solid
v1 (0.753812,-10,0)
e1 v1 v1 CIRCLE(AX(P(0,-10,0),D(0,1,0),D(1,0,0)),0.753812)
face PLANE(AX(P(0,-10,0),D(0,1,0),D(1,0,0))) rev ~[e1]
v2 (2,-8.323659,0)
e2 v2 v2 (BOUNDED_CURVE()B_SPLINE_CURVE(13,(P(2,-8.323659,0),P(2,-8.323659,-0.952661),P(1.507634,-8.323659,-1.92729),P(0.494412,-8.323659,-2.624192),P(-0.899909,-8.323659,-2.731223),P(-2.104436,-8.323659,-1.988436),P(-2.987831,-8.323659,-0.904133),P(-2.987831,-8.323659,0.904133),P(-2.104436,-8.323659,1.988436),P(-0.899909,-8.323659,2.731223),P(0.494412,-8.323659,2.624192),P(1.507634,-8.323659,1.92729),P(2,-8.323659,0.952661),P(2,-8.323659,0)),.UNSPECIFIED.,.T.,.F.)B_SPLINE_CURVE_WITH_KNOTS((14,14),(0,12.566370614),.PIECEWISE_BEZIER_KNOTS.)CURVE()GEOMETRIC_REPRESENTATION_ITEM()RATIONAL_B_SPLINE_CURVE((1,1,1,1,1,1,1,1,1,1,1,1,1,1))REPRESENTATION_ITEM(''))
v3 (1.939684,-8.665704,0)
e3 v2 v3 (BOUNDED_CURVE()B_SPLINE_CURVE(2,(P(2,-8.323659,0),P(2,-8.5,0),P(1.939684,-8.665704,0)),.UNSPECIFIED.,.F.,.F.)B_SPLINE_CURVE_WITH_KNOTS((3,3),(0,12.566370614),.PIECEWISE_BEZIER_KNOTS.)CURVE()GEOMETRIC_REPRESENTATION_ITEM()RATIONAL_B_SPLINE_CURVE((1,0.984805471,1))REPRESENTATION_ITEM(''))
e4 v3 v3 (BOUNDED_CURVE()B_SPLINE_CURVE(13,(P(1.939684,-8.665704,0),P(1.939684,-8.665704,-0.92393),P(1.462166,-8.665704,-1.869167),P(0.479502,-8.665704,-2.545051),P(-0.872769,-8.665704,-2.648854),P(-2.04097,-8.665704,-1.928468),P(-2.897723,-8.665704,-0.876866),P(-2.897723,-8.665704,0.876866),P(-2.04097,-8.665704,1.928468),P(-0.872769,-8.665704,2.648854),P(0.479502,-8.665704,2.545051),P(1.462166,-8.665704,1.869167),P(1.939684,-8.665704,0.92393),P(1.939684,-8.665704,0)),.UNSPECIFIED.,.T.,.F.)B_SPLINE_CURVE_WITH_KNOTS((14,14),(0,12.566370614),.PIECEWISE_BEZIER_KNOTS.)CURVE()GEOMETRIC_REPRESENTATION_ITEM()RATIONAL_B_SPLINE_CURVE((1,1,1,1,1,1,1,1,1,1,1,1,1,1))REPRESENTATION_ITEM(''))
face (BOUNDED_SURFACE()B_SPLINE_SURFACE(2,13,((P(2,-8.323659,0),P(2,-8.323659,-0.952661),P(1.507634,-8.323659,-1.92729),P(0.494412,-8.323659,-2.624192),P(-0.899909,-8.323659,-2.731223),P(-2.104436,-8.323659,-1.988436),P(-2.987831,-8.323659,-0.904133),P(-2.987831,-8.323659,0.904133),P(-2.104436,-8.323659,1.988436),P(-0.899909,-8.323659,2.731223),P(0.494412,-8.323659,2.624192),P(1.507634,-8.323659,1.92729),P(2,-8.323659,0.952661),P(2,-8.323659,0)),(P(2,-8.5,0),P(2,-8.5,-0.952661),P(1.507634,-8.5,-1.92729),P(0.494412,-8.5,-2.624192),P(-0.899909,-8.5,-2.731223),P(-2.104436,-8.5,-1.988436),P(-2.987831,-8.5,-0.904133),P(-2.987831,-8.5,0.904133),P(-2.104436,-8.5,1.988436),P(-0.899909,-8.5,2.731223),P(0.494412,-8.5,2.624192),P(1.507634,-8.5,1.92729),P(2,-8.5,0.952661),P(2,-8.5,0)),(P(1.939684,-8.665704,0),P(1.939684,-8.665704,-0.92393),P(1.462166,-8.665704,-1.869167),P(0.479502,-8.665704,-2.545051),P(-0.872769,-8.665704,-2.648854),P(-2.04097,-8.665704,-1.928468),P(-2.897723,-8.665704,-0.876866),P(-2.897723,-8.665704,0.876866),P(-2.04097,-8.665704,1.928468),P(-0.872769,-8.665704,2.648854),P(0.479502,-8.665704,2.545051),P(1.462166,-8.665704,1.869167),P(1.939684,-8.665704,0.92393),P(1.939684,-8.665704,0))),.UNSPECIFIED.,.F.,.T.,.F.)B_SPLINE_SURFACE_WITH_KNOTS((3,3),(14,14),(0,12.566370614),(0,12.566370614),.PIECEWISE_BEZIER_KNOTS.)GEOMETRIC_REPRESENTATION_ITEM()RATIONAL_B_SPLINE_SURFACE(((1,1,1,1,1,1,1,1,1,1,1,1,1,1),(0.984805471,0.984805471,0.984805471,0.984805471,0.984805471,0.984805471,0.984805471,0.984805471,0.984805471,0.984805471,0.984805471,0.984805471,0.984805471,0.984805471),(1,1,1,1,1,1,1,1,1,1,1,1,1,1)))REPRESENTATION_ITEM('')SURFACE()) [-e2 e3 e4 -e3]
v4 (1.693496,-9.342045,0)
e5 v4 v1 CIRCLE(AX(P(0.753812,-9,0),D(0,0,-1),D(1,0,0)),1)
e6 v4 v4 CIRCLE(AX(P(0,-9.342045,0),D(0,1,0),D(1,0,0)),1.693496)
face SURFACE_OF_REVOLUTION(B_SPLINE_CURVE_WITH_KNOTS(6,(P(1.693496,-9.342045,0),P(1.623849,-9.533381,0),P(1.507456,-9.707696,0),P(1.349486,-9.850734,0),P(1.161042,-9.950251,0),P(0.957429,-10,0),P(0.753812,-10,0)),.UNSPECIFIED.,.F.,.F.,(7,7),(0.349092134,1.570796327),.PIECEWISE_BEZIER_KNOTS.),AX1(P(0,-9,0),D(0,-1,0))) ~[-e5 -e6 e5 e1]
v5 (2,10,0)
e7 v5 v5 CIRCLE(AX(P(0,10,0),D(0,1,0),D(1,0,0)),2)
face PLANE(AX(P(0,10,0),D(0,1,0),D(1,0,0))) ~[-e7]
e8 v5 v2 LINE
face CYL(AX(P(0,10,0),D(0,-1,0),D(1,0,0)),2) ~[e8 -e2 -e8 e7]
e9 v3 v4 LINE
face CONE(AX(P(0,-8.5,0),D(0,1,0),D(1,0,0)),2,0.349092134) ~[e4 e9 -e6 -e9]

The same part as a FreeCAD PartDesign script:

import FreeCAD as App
import Part
import Sketcher

V = App.Vector


def edges_at(feature, points):
    """Names of the edges that pass closest to the given points."""
    edges = feature.Shape.Edges
    near = lambda p: min(range(len(edges)), key=lambda i: edges[i].distToShape(Part.Vertex(*p))[0])
    return sorted({f"Edge{near(p) + 1}" for p in points})

doc = App.newDocument("Part")
params = doc.addObject("Spreadsheet::Sheet", "Params")
for row, (alias, value) in enumerate([
    ("sketch1_height", "20 mm"),
    ("sketch1_width", "2 mm"),
    ("revolution_angle", "360 deg"),
    ("fillet_radius", "1 mm"),
], start=1):
    params.set(f"A{row}", alias)
    params.set(f"B{row}", "=" + value)
    params.setAlias(f"B{row}", alias)

body = doc.addObject("PartDesign::Body", "Body")

# Sketch on XY plane
sketch1 = body.newObject("Sketcher::SketchObject", "Sketch")
sketch1.AttachmentSupport = (doc.getObject("XY_Plane"), [""])
sketch1.MapMode = "FlatFace"
sketch1.addGeometry(Part.LineSegment(V(2, -8.5, 0), V(2, 10, 0)), False)
sketch1.addGeometry(Part.LineSegment(V(2, 10, 0), V(0, 10, 0)), False)
sketch1.addGeometry(Part.LineSegment(V(0, 10, 0), V(0, -10, 0)), False)
sketch1.addGeometry(Part.LineSegment(V(0, -10, 0), V(1.454, -10, 0)), False)
sketch1.addGeometry(Part.LineSegment(V(1.454, -10, 0), V(2, -8.5, 0)), False)
sketch1.addConstraint(Sketcher.Constraint("Coincident", 0, 2, 1, 1))
sketch1.addConstraint(Sketcher.Constraint("Coincident", 1, 2, 2, 1))
sketch1.addConstraint(Sketcher.Constraint("Coincident", 2, 2, 3, 1))
sketch1.addConstraint(Sketcher.Constraint("Coincident", 3, 2, 4, 1))
sketch1.addConstraint(Sketcher.Constraint("Coincident", 4, 2, 0, 1))
sketch1.addConstraint(Sketcher.Constraint("Vertical", 0))
sketch1.addConstraint(Sketcher.Constraint("Horizontal", 1))
sketch1.addConstraint(Sketcher.Constraint("Vertical", 2))
sketch1.addConstraint(Sketcher.Constraint("Horizontal", 3))
sketch1.addConstraint(Sketcher.Constraint("Symmetric", 1, 2, 2, 2, -1, 1))
sketch1.addConstraint(Sketcher.Constraint("DistanceY", 2, 2, 2, 1, 20.0))
sketch1.addConstraint(Sketcher.Constraint("DistanceY", 3, 2, 4, 2, 1.5))
sketch1.addConstraint(Sketcher.Constraint("DistanceX", 1, 2, 1, 1, 2.0))
sketch1.addConstraint(Sketcher.Constraint("DistanceX", 3, 1, 3, 2, 1.454))
sketch1.setExpression("Constraints[10]", "Params.sketch1_height")
sketch1.setExpression("Constraints[12]", "Params.sketch1_width")
revolution = body.newObject("PartDesign::Revolution", "Revolution")
revolution.Profile = sketch1
revolution.ReferenceAxis = (sketch1, ["V_Axis"])
revolution.setExpression("Angle", "Params.revolution_angle")
doc.recompute()

fillet = body.newObject("PartDesign::Fillet", "Fillet")
fillet.Base = (revolution, edges_at(revolution, [(-1.454, -10, 0), (-2, -8.5, 0)]))
fillet.setExpression("Radius", "Params.fillet_radius")

doc.recompute()
